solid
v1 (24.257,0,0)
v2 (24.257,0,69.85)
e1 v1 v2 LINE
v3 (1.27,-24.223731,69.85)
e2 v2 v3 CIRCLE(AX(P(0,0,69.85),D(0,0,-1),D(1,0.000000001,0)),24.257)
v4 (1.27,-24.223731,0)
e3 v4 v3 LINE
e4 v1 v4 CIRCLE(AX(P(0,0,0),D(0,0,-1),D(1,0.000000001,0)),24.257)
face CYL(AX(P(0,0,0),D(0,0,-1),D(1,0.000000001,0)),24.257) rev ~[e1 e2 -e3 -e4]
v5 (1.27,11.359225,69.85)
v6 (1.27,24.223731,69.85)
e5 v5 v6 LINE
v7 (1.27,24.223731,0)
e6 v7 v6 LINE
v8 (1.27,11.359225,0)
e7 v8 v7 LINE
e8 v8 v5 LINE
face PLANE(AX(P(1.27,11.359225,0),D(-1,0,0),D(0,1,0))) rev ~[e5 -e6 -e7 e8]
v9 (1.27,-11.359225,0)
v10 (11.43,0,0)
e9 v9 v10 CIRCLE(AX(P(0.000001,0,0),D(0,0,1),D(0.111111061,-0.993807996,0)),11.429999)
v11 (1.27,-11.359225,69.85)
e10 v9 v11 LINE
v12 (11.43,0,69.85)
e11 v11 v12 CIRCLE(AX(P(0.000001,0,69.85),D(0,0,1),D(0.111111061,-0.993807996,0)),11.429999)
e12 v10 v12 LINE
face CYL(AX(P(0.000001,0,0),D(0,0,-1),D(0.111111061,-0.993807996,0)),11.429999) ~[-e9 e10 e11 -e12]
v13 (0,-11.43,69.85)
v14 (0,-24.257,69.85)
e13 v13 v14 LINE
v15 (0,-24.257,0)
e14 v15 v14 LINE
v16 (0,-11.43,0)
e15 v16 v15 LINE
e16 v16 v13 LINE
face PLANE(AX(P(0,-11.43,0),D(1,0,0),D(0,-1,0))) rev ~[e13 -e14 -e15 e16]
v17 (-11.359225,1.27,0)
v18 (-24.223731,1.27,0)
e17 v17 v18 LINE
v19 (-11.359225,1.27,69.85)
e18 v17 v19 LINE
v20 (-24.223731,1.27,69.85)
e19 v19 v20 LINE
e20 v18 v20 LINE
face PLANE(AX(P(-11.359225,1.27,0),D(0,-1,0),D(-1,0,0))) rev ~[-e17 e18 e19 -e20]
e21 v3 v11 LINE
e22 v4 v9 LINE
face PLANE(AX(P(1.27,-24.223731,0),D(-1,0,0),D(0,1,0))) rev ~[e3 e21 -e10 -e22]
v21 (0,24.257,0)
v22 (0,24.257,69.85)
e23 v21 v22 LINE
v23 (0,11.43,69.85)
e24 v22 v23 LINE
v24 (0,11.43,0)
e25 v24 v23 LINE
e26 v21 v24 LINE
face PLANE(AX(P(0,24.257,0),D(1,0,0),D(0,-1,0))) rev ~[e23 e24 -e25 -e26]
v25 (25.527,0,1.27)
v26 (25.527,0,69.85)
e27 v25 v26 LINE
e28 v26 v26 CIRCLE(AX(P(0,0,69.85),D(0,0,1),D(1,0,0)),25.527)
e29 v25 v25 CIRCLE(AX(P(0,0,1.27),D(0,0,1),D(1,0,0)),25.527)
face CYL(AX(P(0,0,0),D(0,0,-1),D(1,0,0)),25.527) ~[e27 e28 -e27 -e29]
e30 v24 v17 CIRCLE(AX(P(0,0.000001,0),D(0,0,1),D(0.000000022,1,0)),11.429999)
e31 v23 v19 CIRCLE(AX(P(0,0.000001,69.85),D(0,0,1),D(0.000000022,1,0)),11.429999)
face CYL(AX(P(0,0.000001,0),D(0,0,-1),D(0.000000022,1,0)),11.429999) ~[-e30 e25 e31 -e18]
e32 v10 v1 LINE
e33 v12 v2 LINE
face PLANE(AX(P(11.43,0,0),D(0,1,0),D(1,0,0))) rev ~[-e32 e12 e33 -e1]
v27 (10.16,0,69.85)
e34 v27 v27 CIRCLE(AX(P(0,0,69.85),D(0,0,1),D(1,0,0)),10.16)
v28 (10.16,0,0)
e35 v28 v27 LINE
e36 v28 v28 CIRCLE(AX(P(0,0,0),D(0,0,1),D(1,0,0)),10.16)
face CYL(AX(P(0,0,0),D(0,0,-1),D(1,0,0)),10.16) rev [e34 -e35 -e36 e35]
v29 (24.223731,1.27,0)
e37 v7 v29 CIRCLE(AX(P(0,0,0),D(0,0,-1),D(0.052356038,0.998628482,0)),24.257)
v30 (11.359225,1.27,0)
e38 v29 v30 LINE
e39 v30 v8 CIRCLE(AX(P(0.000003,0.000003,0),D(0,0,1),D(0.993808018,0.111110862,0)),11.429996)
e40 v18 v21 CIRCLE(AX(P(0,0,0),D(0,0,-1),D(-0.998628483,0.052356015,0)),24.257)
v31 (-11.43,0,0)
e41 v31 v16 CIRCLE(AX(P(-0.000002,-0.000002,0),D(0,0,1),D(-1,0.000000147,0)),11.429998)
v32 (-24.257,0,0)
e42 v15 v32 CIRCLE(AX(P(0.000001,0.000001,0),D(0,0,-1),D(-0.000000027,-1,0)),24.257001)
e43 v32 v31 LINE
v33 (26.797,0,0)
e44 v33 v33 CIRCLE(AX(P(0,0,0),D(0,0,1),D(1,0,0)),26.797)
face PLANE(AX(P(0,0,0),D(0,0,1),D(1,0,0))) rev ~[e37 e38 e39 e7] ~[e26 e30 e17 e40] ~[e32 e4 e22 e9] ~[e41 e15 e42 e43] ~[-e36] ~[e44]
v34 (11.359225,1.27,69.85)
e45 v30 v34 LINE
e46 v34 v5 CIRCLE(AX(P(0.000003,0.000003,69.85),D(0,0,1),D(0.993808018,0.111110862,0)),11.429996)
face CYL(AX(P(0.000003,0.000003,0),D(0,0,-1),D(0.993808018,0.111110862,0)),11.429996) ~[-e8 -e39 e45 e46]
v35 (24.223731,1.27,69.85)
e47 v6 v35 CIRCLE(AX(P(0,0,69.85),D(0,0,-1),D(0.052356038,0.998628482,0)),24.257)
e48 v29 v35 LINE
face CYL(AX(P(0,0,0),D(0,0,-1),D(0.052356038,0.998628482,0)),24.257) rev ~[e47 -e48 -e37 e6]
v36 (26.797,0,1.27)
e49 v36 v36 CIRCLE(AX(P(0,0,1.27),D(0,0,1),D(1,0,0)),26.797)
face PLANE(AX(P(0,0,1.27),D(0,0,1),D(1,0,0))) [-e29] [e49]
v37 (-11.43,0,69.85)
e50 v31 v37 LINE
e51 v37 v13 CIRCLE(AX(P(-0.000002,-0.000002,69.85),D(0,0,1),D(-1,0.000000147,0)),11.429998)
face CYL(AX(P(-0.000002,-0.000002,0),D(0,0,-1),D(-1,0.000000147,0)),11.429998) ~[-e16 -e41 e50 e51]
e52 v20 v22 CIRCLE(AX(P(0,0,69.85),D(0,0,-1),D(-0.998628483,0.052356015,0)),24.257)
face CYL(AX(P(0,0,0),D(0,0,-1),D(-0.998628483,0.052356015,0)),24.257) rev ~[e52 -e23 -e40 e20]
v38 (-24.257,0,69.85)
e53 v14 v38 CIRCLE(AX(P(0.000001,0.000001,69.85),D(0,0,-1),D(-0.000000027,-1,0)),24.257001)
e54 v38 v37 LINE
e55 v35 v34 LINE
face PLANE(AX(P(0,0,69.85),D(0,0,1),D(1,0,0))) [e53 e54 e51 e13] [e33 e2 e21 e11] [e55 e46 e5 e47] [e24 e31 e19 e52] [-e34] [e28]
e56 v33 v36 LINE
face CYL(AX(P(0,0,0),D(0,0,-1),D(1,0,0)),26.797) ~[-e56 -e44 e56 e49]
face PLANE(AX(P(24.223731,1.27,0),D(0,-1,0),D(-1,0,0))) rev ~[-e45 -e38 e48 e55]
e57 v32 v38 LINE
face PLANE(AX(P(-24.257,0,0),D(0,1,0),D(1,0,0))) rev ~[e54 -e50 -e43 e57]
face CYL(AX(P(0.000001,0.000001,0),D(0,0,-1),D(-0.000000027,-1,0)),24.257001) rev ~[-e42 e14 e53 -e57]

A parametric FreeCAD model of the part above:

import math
import FreeCAD as App
import Part
import Sketcher
Q = App.Units.Quantity

doc = App.newDocument("Part")
body = doc.addObject("PartDesign::Body", "Body")

sketch1 = body.newObject("Sketcher::SketchObject", "Sketch")
sketch1.AttachmentSupport = (doc.getObject("XY_Plane"), [""])
sketch1.MapMode = "FlatFace"
sketch1.addGeometry(Part.Circle(App.Vector(0, 0, 0), App.Vector(0, 0, 1), 26), False)
sketch1.addGeometry(Part.ArcOfCircle(Part.Circle(App.Vector(0, 0, 0), App.Vector(0, 0, 1), 24), math.radians(3), math.radians(87)), False)
sketch1.addGeometry(Part.LineSegment(App.Vector(24, 1, 0), App.Vector(11, 1, 0)), False)
sketch1.addGeometry(Part.ArcOfCircle(Part.Circle(App.Vector(0, 0, 0), App.Vector(0, 0, 1), 11), math.radians(6), math.radians(84)), False)
sketch1.addGeometry(Part.LineSegment(App.Vector(1, 11, 0), App.Vector(1, 24, 0)), False)
sketch1.addGeometry(Part.ArcOfCircle(Part.Circle(App.Vector(0, 0, 0), App.Vector(0, 0, 1), 24), math.radians(-87), math.radians(0)), False)
sketch1.addGeometry(Part.LineSegment(App.Vector(1, -24, 0), App.Vector(1, -11, 0)), False)
sketch1.addGeometry(Part.ArcOfCircle(Part.Circle(App.Vector(0, 0, 0), App.Vector(0, 0, 1), 11), math.radians(-84), math.radians(0)), False)
sketch1.addGeometry(Part.LineSegment(App.Vector(11, 0, 0), App.Vector(24, 0, 0)), False)
sketch1.addGeometry(Part.ArcOfCircle(Part.Circle(App.Vector(0, 0, 0), App.Vector(0, 0, 1), 24), math.radians(-180), math.radians(-90)), False)
sketch1.addGeometry(Part.LineSegment(App.Vector(-24, 0, 0), App.Vector(-11, 0, 0)), False)
sketch1.addGeometry(Part.ArcOfCircle(Part.Circle(App.Vector(0, 0, 0), App.Vector(0, 0, 1), 11), math.radians(180), math.radians(270)), False)
sketch1.addGeometry(Part.LineSegment(App.Vector(0, -11, 0), App.Vector(0, -24, 0)), False)
sketch1.addGeometry(Part.ArcOfCircle(Part.Circle(App.Vector(0, 0, 0), App.Vector(0, 0, 1), 24), math.radians(90), math.radians(177)), False)
sketch1.addGeometry(Part.LineSegment(App.Vector(0, 24, 0), App.Vector(0, 11, 0)), False)
sketch1.addGeometry(Part.ArcOfCircle(Part.Circle(App.Vector(0, 0, 0), App.Vector(0, 0, 1), 11), math.radians(90), math.radians(174)), False)
sketch1.addGeometry(Part.LineSegment(App.Vector(-11, 1, 0), App.Vector(-24, 1, 0)), False)
sketch1.addGeometry(Part.Circle(App.Vector(0, 0, 0), App.Vector(0, 0, 1), 10), False)
sketch1.addConstraint(Sketcher.Constraint("Coincident", 1, 1, 2, 1))
sketch1.addConstraint(Sketcher.Constraint("Coincident", 2, 2, 3, 1))
sketch1.addConstraint(Sketcher.Constraint("Coincident", 3, 2, 4, 1))
sketch1.addConstraint(Sketcher.Constraint("Coincident", 4, 2, 1, 2))
sketch1.addConstraint(Sketcher.Constraint("Coincident", 5, 1, 6, 1))
sketch1.addConstraint(Sketcher.Constraint("Coincident", 6, 2, 7, 1))
sketch1.addConstraint(Sketcher.Constraint("Coincident", 7, 2, 8, 1))
sketch1.addConstraint(Sketcher.Constraint("Coincident", 8, 2, 5, 2))
sketch1.addConstraint(Sketcher.Constraint("Coincident", 9, 1, 10, 1))
sketch1.addConstraint(Sketcher.Constraint("Coincident", 10, 2, 11, 1))
sketch1.addConstraint(Sketcher.Constraint("Coincident", 11, 2, 12, 1))
sketch1.addConstraint(Sketcher.Constraint("Coincident", 12, 2, 9, 2))
sketch1.addConstraint(Sketcher.Constraint("Coincident", 13, 1, 14, 1))
sketch1.addConstraint(Sketcher.Constraint("Coincident", 14, 2, 15, 1))
sketch1.addConstraint(Sketcher.Constraint("Coincident", 15, 2, 16, 1))
sketch1.addConstraint(Sketcher.Constraint("Coincident", 16, 2, 13, 2))
sketch1.addConstraint(Sketcher.Constraint("Horizontal", 2))
sketch1.addConstraint(Sketcher.Constraint("Vertical", 4))
sketch1.addConstraint(Sketcher.Constraint("Vertical", 6))
sketch1.addConstraint(Sketcher.Constraint("Horizontal", 8))
sketch1.addConstraint(Sketcher.Constraint("Horizontal", 10))
sketch1.addConstraint(Sketcher.Constraint("Vertical", 12))
sketch1.addConstraint(Sketcher.Constraint("Vertical", 14))
sketch1.addConstraint(Sketcher.Constraint("Horizontal", 16))
sketch1.addConstraint(Sketcher.Constraint("Coincident", 0, 3, -1, 1))
sketch1.addConstraint(Sketcher.Constraint("Coincident", 1, 3, -1, 1))
sketch1.addConstraint(Sketcher.Constraint("Coincident", 3, 3, -1, 1))
sketch1.addConstraint(Sketcher.Constraint("Coincident", 5, 3, -1, 1))
sketch1.addConstraint(Sketcher.Constraint("Coincident", 7, 3, -1, 1))
sketch1.addConstraint(Sketcher.Constraint("Coincident", 9, 3, -1, 1))
sketch1.addConstraint(Sketcher.Constraint("Coincident", 11, 3, -1, 1))
sketch1.addConstraint(Sketcher.Constraint("Coincident", 13, 3, -1, 1))
sketch1.addConstraint(Sketcher.Constraint("Coincident", 15, 3, -1, 1))
sketch1.addConstraint(Sketcher.Constraint("Coincident", 17, 3, -1, 1))
sketch1.addConstraint(Sketcher.Constraint("Equal", 1, 5))
sketch1.addConstraint(Sketcher.Constraint("Equal", 5, 9))
sketch1.addConstraint(Sketcher.Constraint("Equal", 7, 11))
sketch1.addConstraint(Sketcher.Constraint("Equal", 9, 13))
sketch1.addConstraint(Sketcher.Constraint("Equal", 11, 15))
sketch1.addConstraint(Sketcher.Constraint("Symmetric", 2, 2, 15, 2, -2))
sketch1.addConstraint(Sketcher.Constraint("PointOnObject", 7, 2, -1))
sketch1.addConstraint(Sketcher.Constraint("PointOnObject", 9, 1, -1))
sketch1.addConstraint(Sketcher.Constraint("PointOnObject", 11, 2, -2))
sketch1.addConstraint(Sketcher.Constraint("PointOnObject", 13, 1, -2))
sketch1.addConstraint(Sketcher.Constraint("Vertical", 4, 2, 5, 1))
sketch1.addConstraint(Sketcher.Constraint("Equal", 16, 4))
sketch1.addConstraint(Sketcher.Constraint("Diameter", 17, Q("0.8 in")))
sketch1.addConstraint(Sketcher.Constraint("Diameter", 0, Q("2.01 in")))
sketch1.addConstraint(Sketcher.Constraint("Radius", 3, Q("0.4499998 in")))
sketch1.addConstraint(Sketcher.Constraint("Radius", 1, Q("0.955 in")))
sketch1.addConstraint(Sketcher.Constraint("DistanceY", -1, 1, 1, 1, Q("0.05 in")))
pad1 = body.newObject("PartDesign::Pad", "Pad")
pad1.Profile = sketch1
pad1.Length = Q("2.75 in")

sketch2 = body.newObject("Sketcher::SketchObject", "Sketch001")
sketch2.AttachmentSupport = (doc.getObject("XY_Plane"), [""])
sketch2.MapMode = "FlatFace"
sketch2.addGeometry(Part.Circle(App.Vector(0, 0, 0), App.Vector(0, 0, 1), 27), False)
sketch2.addGeometry(Part.Circle(App.Vector(0, 0, 0), App.Vector(0, 0, 1), 26), False)
sketch2.addConstraint(Sketcher.Constraint("Coincident", 0, 3, -1, 1))
sketch2.addConstraint(Sketcher.Constraint("Coincident", 1, 3, -1, 1))
sketch2.addConstraint(Sketcher.Constraint("Diameter", 0, Q("2.11 in")))
sketch2.addConstraint(Sketcher.Constraint("Diameter", 1, Q("2.01 in")))
pad2 = body.newObject("PartDesign::Pad", "Pad001")
pad2.Profile = sketch2
pad2.Length = Q("0.05 in")

doc.recompute()
